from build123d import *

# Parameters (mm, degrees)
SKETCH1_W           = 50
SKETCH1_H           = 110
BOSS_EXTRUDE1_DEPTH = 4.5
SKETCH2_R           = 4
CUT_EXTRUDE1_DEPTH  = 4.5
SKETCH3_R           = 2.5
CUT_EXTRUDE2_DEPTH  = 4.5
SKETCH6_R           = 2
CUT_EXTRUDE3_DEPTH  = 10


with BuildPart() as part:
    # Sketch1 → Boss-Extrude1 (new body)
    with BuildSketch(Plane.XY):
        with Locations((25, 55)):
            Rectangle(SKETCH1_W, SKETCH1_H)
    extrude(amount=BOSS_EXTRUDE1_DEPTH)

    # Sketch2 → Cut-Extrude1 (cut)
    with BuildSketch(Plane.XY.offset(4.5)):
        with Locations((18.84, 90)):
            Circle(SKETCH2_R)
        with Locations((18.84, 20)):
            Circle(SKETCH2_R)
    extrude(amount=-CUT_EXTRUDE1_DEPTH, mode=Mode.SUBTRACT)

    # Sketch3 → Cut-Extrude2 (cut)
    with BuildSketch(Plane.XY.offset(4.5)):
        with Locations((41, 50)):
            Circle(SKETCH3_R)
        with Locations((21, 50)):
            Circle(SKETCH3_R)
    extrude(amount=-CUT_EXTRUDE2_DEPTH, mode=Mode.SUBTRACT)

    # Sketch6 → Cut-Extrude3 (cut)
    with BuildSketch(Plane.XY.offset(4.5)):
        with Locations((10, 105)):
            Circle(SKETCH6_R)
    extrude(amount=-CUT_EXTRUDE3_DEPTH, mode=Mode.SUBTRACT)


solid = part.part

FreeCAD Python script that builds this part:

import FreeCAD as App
import Part
import Sketcher

V = App.Vector
Q = App.Units.Quantity


def add_polygon(sketch, points):
    """Adds a closed chain of lines whose ends are joined by coincident constraints."""
    first, n = sketch.GeometryCount, len(points)
    for a, b in zip(points, points[1:] + points[:1]):
        sketch.addGeometry(Part.LineSegment(App.Vector(*a, 0), App.Vector(*b, 0)), False)
    for i in range(n):
        sketch.addConstraint(Sketcher.Constraint("Coincident", first + i, 2, first + (i + 1) % n, 1))

doc = App.newDocument("Part")
params = doc.addObject("Spreadsheet::Sheet", "Params")
for row, (alias, value) in enumerate([
    ("sketch1_width", "50 mm"),
    ("sketch1_height", "110 mm"),
    ("pad1_length", "4.5 mm"),
    ("sketch2_diameter", "8 mm"),
    ("pocket1_length", "4.5 mm"),
    ("sketch3_diameter", "5 mm"),
    ("pocket2_length", "4.5 mm"),
    ("sketch4_diameter", "4 mm"),
    ("pocket3_length", "10 mm"),
], start=1):
    params.set(f"A{row}", alias)
    params.set(f"B{row}", "=" + value)
    params.setAlias(f"B{row}", alias)

body = doc.addObject("PartDesign::Body", "Body")

sketch1 = doc.addObject("Sketcher::SketchObject", "Sketch")
body.addObject(sketch1)
sketch1.AttachmentSupport = (doc.XY_Plane, [""])
sketch1.MapMode = "FlatFace"
add_polygon(sketch1, [(0, 110), (0, 0), (50, 0), (50, 110)])
sketch1.addConstraint(Sketcher.Constraint("Vertical", 0))
sketch1.addConstraint(Sketcher.Constraint("Horizontal", 1))
sketch1.addConstraint(Sketcher.Constraint("Vertical", 2))
sketch1.addConstraint(Sketcher.Constraint("Horizontal", 3))
sketch1.addConstraint(Sketcher.Constraint("Coincident", 0, 2, -1, 1))
sketch1.addConstraint(Sketcher.Constraint("DistanceX", 1, 1, 1, 2, Q("50 mm")))
sketch1.addConstraint(Sketcher.Constraint("DistanceY", 0, 2, 0, 1, Q("110 mm")))
sketch1.setExpression("Constraints[9]", "Params.sketch1_width")
sketch1.setExpression("Constraints[10]", "Params.sketch1_height")
pad1 = doc.addObject("PartDesign::Pad", "Pad")
body.addObject(pad1)
pad1.Profile = sketch1
pad1.setExpression("Length", "Params.pad1_length")

sketch2 = doc.addObject("Sketcher::SketchObject", "Sketch001")
body.addObject(sketch2)
sketch2.AttachmentSupport = (doc.XY_Plane, [""])
sketch2.MapMode = "FlatFace"
sketch2.AttachmentOffset = App.Placement(V(0, 0, 4.5), App.Rotation())
sketch2.addGeometry(Part.Circle(V(18.8, 90, 0), V(0, 0, 1), 4), False)
sketch2.addGeometry(Part.Circle(V(18.8, 20, 0), V(0, 0, 1), 4), False)
sketch2.addConstraint(Sketcher.Constraint("Equal", 0, 1))
sketch2.addConstraint(Sketcher.Constraint("Vertical", 0, 3, 1, 3))
sketch2.addConstraint(Sketcher.Constraint("Diameter", 0, Q("8 mm")))
sketch2.addConstraint(Sketcher.Constraint("DistanceY", -1, 1, 0, 3, Q("90 mm")))
sketch2.addConstraint(Sketcher.Constraint("DistanceY", -1, 1, 1, 3, Q("20 mm")))
sketch2.addConstraint(Sketcher.Constraint("DistanceX", -1, 1, 0, 3, Q("18.84 mm")))
sketch2.setExpression("Constraints[2]", "Params.sketch2_diameter")
pocket1 = doc.addObject("PartDesign::Pocket", "Pocket")
body.addObject(pocket1)
pocket1.Profile = sketch2
pocket1.setExpression("Length", "Params.pocket1_length")

sketch3 = doc.addObject("Sketcher::SketchObject", "Sketch002")
body.addObject(sketch3)
sketch3.AttachmentSupport = (doc.XY_Plane, [""])
sketch3.MapMode = "FlatFace"
sketch3.AttachmentOffset = App.Placement(V(0, 0, 4.5), App.Rotation())
sketch3.addGeometry(Part.Circle(V(41, 50, 0), V(0, 0, 1), 2.5), False)
sketch3.addGeometry(Part.Circle(V(21, 50, 0), V(0, 0, 1), 2.5), False)
sketch3.addConstraint(Sketcher.Constraint("Equal", 0, 1))
sketch3.addConstraint(Sketcher.Constraint("Horizontal", 0, 3, 1, 3))
sketch3.addConstraint(Sketcher.Constraint("Diameter", 0, Q("5 mm")))
sketch3.addConstraint(Sketcher.Constraint("DistanceX", -1, 1, 0, 3, Q("41 mm")))
sketch3.addConstraint(Sketcher.Constraint("DistanceY", -1, 1, 0, 3, Q("50 mm")))
sketch3.addConstraint(Sketcher.Constraint("DistanceX", -1, 1, 1, 3, Q("21 mm")))
sketch3.setExpression("Constraints[2]", "Params.sketch3_diameter")
pocket2 = doc.addObject("PartDesign::Pocket", "Pocket001")
body.addObject(pocket2)
pocket2.Profile = sketch3
pocket2.setExpression("Length", "Params.pocket2_length")

sketch4 = doc.addObject("Sketcher::SketchObject", "Sketch003")
body.addObject(sketch4)
sketch4.AttachmentSupport = (doc.XY_Plane, [""])
sketch4.MapMode = "FlatFace"
sketch4.AttachmentOffset = App.Placement(V(0, 0, 4.5), App.Rotation())
sketch4.addGeometry(Part.Circle(V(10, 105, 0), V(0, 0, 1), 2), False)
sketch4.addConstraint(Sketcher.Constraint("Diameter", 0, Q("4 mm")))
sketch4.addConstraint(Sketcher.Constraint("DistanceX", -1, 1, 0, 3, Q("10 mm")))
sketch4.addConstraint(Sketcher.Constraint("DistanceY", -1, 1, 0, 3, Q("105 mm")))
sketch4.setExpression("Constraints[0]", "Params.sketch4_diameter")
pocket3 = doc.addObject("PartDesign::Pocket", "Pocket002")
body.addObject(pocket3)
pocket3.Profile = sketch4
pocket3.setExpression("Length", "Params.pocket3_length")

doc.recompute()
